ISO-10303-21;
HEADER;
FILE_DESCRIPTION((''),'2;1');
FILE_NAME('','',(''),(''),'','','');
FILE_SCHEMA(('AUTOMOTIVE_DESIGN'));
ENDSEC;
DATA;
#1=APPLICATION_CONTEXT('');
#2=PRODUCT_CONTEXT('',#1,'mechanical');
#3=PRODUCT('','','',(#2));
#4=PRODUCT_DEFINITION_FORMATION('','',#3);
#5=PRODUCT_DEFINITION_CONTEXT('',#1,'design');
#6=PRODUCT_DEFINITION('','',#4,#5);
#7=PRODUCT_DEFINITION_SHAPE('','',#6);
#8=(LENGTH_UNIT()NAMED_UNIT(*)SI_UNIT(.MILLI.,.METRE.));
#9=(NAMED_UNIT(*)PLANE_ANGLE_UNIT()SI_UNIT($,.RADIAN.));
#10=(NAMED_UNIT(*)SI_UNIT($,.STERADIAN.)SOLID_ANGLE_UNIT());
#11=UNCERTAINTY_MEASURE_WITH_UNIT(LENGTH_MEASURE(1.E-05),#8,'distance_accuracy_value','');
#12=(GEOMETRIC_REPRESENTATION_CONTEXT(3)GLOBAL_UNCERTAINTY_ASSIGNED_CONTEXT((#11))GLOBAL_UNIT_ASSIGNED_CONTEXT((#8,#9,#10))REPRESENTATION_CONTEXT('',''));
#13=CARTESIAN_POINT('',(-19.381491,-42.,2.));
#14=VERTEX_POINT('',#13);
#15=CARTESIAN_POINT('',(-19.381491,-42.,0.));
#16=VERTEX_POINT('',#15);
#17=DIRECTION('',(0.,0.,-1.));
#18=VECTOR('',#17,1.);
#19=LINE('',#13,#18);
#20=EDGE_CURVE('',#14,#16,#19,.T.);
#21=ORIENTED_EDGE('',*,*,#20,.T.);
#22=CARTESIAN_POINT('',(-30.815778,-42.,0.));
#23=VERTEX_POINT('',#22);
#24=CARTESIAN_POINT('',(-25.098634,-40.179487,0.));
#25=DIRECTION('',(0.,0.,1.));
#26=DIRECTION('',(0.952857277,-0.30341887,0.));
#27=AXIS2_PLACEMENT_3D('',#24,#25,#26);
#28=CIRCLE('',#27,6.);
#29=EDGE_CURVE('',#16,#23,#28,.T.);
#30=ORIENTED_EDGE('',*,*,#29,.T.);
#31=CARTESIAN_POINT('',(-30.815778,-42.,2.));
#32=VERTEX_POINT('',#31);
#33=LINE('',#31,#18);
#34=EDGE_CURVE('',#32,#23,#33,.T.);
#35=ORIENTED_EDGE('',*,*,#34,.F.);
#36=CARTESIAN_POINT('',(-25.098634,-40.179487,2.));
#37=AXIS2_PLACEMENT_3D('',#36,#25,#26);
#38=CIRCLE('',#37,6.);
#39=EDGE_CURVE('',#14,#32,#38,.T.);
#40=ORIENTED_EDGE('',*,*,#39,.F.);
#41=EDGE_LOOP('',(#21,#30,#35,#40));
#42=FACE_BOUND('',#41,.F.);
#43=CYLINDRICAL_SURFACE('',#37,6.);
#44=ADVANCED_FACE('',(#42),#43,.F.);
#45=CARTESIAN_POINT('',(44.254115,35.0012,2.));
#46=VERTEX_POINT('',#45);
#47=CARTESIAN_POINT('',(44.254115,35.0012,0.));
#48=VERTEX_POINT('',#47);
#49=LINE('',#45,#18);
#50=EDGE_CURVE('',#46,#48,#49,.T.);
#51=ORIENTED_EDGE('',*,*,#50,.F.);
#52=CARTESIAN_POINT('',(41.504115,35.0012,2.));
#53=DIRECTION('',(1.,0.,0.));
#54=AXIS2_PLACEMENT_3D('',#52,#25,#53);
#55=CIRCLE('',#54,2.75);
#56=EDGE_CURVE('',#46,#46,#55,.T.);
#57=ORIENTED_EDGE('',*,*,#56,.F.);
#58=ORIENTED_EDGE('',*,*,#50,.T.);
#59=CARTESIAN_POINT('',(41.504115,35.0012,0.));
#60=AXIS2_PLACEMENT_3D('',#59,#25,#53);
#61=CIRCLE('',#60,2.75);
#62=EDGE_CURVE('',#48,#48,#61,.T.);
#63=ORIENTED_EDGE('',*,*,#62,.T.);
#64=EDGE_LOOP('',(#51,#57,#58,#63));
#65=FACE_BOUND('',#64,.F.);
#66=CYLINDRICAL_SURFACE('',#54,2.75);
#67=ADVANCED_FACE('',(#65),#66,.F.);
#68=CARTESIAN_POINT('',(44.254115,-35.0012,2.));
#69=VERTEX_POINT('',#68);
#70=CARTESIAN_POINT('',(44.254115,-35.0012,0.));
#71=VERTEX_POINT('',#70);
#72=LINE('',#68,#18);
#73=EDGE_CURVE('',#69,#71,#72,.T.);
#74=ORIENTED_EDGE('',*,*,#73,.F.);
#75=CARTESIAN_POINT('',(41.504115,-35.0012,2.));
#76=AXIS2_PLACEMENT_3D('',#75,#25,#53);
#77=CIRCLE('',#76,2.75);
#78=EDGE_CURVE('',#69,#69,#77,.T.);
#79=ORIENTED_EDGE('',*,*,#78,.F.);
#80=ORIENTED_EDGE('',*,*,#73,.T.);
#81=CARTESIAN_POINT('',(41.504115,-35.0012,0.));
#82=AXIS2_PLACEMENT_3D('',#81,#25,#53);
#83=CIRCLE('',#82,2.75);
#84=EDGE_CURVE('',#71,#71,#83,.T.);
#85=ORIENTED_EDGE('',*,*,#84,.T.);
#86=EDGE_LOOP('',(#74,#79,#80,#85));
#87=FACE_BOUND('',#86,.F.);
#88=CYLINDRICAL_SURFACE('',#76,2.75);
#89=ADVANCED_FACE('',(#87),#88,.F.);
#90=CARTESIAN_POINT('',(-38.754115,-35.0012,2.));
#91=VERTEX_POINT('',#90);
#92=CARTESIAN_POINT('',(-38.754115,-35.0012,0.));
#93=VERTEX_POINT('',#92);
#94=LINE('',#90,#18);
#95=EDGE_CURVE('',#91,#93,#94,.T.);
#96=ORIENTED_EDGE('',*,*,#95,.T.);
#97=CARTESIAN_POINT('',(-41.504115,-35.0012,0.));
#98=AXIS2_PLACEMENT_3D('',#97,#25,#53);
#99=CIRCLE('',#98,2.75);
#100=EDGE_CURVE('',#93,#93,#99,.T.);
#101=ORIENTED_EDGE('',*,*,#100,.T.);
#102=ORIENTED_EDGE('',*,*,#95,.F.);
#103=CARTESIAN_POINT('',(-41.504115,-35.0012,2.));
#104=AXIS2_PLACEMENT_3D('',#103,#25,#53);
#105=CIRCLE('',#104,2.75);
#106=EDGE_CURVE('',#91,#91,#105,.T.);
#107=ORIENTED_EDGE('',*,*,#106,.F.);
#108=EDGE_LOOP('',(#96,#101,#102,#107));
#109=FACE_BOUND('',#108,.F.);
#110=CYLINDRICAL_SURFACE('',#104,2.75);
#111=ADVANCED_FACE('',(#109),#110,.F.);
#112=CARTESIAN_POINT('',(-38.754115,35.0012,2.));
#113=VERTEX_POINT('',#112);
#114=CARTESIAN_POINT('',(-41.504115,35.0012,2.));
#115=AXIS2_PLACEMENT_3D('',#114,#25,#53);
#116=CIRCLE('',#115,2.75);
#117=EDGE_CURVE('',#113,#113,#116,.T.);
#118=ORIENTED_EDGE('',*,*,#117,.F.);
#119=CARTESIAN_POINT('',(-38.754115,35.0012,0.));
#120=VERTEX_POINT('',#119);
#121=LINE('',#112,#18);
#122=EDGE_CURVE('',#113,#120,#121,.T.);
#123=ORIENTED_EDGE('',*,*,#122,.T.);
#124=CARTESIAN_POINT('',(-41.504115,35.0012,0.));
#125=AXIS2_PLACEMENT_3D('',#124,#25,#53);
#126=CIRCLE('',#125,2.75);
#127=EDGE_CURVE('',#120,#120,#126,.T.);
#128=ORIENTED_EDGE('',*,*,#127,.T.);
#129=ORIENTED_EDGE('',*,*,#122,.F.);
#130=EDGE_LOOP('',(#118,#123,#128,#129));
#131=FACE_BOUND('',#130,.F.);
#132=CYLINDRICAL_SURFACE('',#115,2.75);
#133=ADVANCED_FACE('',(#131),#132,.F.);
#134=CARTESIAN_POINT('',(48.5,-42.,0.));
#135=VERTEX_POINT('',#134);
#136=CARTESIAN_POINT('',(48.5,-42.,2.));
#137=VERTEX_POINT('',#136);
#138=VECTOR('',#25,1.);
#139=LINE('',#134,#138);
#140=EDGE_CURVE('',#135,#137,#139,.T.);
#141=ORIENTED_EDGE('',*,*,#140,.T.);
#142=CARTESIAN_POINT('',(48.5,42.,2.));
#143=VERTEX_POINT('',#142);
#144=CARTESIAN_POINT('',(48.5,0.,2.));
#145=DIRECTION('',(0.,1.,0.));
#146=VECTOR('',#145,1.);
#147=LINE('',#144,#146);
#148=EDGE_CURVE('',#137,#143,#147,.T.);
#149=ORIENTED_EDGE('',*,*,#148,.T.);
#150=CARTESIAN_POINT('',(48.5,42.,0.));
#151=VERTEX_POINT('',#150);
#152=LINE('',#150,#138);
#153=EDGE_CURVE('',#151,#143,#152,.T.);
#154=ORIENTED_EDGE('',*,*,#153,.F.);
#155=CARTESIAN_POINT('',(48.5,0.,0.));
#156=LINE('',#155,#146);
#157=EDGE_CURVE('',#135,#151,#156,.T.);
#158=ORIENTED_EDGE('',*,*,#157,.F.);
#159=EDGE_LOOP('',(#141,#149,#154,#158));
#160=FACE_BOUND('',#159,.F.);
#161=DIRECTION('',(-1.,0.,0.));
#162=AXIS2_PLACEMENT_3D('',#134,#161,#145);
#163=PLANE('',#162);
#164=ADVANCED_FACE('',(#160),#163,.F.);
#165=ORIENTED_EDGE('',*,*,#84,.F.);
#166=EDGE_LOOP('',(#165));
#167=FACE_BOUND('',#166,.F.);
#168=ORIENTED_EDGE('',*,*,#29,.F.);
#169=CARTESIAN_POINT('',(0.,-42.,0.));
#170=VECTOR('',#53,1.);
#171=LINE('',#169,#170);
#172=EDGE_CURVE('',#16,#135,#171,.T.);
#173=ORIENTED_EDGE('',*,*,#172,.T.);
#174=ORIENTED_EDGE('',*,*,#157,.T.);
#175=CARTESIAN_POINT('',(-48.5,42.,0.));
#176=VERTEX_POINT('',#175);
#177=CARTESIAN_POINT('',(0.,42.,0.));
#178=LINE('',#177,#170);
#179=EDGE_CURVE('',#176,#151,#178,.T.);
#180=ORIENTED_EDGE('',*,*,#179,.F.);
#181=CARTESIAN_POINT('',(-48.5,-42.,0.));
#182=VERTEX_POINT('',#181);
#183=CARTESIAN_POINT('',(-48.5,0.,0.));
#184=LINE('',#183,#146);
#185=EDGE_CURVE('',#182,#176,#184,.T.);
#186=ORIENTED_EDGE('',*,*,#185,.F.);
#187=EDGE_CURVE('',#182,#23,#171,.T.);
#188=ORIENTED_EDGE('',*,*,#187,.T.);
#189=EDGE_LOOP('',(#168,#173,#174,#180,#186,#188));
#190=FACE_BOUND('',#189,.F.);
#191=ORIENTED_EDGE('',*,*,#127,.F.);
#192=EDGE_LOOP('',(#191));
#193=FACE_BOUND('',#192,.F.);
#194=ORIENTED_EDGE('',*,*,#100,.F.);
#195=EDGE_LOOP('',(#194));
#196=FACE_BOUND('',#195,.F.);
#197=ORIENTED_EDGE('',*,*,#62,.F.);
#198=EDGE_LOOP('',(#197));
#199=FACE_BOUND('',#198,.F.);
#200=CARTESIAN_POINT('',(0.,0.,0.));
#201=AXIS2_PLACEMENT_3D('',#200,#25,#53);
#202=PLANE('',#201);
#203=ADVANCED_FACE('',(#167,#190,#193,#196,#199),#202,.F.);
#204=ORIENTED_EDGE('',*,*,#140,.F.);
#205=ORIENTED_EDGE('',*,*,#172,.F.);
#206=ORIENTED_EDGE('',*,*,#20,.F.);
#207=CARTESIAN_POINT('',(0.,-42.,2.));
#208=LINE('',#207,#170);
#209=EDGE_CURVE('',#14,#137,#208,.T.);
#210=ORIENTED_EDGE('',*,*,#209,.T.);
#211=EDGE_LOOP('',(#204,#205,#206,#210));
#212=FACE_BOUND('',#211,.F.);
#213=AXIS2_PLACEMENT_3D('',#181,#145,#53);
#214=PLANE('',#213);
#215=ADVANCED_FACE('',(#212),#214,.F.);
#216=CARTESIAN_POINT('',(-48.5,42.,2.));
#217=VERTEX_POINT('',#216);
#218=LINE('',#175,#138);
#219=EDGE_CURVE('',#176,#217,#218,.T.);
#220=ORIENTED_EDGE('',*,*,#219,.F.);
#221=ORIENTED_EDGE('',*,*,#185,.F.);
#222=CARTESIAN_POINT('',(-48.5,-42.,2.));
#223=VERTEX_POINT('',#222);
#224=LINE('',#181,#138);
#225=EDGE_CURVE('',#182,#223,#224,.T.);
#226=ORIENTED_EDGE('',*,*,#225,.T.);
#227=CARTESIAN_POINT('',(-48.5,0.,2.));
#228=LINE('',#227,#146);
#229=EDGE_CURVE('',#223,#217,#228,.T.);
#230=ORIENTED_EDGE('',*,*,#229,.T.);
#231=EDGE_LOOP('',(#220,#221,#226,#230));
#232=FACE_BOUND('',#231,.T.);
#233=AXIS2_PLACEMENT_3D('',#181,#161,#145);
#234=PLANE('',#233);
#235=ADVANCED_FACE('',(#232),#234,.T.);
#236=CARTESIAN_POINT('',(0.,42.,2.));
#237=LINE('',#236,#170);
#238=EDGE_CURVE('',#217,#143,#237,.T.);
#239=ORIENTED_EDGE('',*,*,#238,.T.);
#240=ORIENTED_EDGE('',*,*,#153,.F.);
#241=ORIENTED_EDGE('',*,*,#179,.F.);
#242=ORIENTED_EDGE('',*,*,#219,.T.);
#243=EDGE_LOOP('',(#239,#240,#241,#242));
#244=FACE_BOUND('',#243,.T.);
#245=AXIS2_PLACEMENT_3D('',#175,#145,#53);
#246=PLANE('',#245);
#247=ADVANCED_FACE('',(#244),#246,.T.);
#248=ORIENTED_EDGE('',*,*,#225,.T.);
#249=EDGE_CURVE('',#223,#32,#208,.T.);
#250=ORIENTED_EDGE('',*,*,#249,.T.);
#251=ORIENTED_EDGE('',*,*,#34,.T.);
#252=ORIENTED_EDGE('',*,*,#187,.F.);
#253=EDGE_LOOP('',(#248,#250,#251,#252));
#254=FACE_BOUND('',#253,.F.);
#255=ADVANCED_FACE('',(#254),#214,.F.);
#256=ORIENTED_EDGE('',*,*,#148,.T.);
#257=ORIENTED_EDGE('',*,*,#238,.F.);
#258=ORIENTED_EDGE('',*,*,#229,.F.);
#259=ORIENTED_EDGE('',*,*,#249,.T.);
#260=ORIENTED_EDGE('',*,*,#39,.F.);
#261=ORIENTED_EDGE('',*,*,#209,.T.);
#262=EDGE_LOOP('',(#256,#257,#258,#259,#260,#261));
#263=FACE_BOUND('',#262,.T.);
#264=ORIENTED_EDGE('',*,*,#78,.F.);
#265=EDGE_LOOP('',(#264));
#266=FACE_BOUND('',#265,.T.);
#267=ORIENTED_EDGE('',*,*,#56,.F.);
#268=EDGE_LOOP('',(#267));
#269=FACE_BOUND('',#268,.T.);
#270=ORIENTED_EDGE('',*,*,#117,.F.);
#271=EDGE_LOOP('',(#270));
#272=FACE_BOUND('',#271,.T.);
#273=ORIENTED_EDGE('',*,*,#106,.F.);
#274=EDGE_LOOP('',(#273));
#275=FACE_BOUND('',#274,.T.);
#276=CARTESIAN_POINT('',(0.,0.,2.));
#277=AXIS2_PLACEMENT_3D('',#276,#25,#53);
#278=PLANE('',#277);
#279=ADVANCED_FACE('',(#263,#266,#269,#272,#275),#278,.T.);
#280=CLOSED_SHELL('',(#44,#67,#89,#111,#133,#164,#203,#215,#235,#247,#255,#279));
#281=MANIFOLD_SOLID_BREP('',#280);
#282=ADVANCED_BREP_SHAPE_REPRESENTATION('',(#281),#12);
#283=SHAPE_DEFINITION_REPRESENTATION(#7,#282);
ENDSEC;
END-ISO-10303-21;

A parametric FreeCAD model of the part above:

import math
import FreeCAD as App
import Part
import Sketcher
from FreeCAD import Vector
Q = App.Units.Quantity


def add_polygon(sketch, points):
    """Adds a closed chain of lines whose ends are joined by coincident constraints."""
    first, n = sketch.GeometryCount, len(points)
    for a, b in zip(points, points[1:] + points[:1]):
        sketch.addGeometry(Part.LineSegment(App.Vector(*a, 0), App.Vector(*b, 0)), False)
    for i in range(n):
        sketch.addConstraint(Sketcher.Constraint("Coincident", first + i, 2, first + (i + 1) % n, 1))

doc = App.newDocument("Part")
body = doc.addObject("PartDesign::Body", "Body")

sketch1 = doc.addObject("Sketcher::SketchObject", "Sketch")
body.addObject(sketch1)
sketch1.AttachmentSupport = (doc.XY_Plane, [""])
sketch1.MapMode = "FlatFace"
add_polygon(sketch1, [(-48.5, 42), (-48.5, -42), (48.5, -42), (48.5, 42)])
sketch1.addConstraint([
    Sketcher.Constraint("Vertical", 0),
    Sketcher.Constraint("Horizontal", 1),
    Sketcher.Constraint("Vertical", 2),
    Sketcher.Constraint("Horizontal", 3),
    Sketcher.Constraint("Symmetric", 0, 2, 2, 2, -1, 1),
    Sketcher.Constraint("DistanceX", 1, 1, 1, 2, Q("97 mm")),
    Sketcher.Constraint("DistanceY", 0, 2, 0, 1, Q("84 mm")),
])
pad1 = doc.addObject("PartDesign::Pad", "Pad")
body.addObject(pad1)
pad1.Profile = sketch1
pad1.Length = 2

sketch2 = doc.addObject("Sketcher::SketchObject", "Sketch001")
body.addObject(sketch2)
sketch2.AttachmentSupport = (doc.XY_Plane, [""])
sketch2.MapMode = "FlatFace"
sketch2.AttachmentOffset = App.Placement(Vector(0, 0, 2), App.Rotation())
sketch2.addGeometry([
    Part.Circle(Vector(-41.504115, 35.0012, 0), Vector(0, 0, 1), 2.75),
    Part.Circle(Vector(41.504115, 35.0012, 0), Vector(0, 0, 1), 2.75),
    Part.Circle(Vector(41.504115, -35.0012, 0), Vector(0, 0, 1), 2.75),
    Part.Circle(Vector(-41.504115, -35.0012, 0), Vector(0, 0, 1), 2.75),
], False)
sketch2.addConstraint([
    Sketcher.Constraint("Equal", 0, 1),
    Sketcher.Constraint("Equal", 1, 2),
    Sketcher.Constraint("Equal", 2, 3),
    Sketcher.Constraint("Symmetric", 0, 3, 2, 3, -1, 1),
    Sketcher.Constraint("Symmetric", 1, 3, 3, 3, -1, 1),
    Sketcher.Constraint("Symmetric", 0, 3, 1, 3, -2),
    Sketcher.Constraint("Diameter", 0, Q("5.5 mm")),
    Sketcher.Constraint("DistanceY", -1, 1, 0, 3, Q("35.0012 mm")),
    Sketcher.Constraint("DistanceX", 0, 3, 1, 3, Q("83.00823 mm")),
])
pocket1 = doc.addObject("PartDesign::Pocket", "Pocket")
body.addObject(pocket1)
pocket1.Profile = sketch2
pocket1.Type = "ThroughAll"

sketch3 = doc.addObject("Sketcher::SketchObject", "Sketch002")
body.addObject(sketch3)
sketch3.AttachmentSupport = (doc.XY_Plane, [""])
sketch3.MapMode = "FlatFace"
sketch3.AttachmentOffset = App.Placement(Vector(0, 0, 2), App.Rotation())
sketch3.addGeometry([
    Part.LineSegment(Vector(-30.815778, -42, 0), Vector(-19.381491, -42, 0)),
    Part.ArcOfCircle(Part.Circle(Vector(-25.098634, -40.179487, 0), Vector(0, 0, 1), 6), math.radians(-17.663065), math.radians(197.663065)),
], False)
sketch3.addConstraint([
    Sketcher.Constraint("Coincident", 0, 1, 1, 2),
    Sketcher.Constraint("Coincident", 1, 1, 0, 2),
    Sketcher.Constraint("Horizontal", 0),
    Sketcher.Constraint("Radius", 1, Q("6 mm")),
    Sketcher.Constraint("DistanceY", 0, 1, -1, 1, Q("42 mm")),
    Sketcher.Constraint("DistanceX", 0, 1, 0, 2, Q("11.434287 mm")),
    Sketcher.Constraint("DistanceX", 0, 1, -1, 1, Q("30.815778 mm")),
])
pocket2 = doc.addObject("PartDesign::Pocket", "Pocket001")
body.addObject(pocket2)
pocket2.Profile = sketch3
pocket2.Type = "ThroughAll"

doc.recompute()
